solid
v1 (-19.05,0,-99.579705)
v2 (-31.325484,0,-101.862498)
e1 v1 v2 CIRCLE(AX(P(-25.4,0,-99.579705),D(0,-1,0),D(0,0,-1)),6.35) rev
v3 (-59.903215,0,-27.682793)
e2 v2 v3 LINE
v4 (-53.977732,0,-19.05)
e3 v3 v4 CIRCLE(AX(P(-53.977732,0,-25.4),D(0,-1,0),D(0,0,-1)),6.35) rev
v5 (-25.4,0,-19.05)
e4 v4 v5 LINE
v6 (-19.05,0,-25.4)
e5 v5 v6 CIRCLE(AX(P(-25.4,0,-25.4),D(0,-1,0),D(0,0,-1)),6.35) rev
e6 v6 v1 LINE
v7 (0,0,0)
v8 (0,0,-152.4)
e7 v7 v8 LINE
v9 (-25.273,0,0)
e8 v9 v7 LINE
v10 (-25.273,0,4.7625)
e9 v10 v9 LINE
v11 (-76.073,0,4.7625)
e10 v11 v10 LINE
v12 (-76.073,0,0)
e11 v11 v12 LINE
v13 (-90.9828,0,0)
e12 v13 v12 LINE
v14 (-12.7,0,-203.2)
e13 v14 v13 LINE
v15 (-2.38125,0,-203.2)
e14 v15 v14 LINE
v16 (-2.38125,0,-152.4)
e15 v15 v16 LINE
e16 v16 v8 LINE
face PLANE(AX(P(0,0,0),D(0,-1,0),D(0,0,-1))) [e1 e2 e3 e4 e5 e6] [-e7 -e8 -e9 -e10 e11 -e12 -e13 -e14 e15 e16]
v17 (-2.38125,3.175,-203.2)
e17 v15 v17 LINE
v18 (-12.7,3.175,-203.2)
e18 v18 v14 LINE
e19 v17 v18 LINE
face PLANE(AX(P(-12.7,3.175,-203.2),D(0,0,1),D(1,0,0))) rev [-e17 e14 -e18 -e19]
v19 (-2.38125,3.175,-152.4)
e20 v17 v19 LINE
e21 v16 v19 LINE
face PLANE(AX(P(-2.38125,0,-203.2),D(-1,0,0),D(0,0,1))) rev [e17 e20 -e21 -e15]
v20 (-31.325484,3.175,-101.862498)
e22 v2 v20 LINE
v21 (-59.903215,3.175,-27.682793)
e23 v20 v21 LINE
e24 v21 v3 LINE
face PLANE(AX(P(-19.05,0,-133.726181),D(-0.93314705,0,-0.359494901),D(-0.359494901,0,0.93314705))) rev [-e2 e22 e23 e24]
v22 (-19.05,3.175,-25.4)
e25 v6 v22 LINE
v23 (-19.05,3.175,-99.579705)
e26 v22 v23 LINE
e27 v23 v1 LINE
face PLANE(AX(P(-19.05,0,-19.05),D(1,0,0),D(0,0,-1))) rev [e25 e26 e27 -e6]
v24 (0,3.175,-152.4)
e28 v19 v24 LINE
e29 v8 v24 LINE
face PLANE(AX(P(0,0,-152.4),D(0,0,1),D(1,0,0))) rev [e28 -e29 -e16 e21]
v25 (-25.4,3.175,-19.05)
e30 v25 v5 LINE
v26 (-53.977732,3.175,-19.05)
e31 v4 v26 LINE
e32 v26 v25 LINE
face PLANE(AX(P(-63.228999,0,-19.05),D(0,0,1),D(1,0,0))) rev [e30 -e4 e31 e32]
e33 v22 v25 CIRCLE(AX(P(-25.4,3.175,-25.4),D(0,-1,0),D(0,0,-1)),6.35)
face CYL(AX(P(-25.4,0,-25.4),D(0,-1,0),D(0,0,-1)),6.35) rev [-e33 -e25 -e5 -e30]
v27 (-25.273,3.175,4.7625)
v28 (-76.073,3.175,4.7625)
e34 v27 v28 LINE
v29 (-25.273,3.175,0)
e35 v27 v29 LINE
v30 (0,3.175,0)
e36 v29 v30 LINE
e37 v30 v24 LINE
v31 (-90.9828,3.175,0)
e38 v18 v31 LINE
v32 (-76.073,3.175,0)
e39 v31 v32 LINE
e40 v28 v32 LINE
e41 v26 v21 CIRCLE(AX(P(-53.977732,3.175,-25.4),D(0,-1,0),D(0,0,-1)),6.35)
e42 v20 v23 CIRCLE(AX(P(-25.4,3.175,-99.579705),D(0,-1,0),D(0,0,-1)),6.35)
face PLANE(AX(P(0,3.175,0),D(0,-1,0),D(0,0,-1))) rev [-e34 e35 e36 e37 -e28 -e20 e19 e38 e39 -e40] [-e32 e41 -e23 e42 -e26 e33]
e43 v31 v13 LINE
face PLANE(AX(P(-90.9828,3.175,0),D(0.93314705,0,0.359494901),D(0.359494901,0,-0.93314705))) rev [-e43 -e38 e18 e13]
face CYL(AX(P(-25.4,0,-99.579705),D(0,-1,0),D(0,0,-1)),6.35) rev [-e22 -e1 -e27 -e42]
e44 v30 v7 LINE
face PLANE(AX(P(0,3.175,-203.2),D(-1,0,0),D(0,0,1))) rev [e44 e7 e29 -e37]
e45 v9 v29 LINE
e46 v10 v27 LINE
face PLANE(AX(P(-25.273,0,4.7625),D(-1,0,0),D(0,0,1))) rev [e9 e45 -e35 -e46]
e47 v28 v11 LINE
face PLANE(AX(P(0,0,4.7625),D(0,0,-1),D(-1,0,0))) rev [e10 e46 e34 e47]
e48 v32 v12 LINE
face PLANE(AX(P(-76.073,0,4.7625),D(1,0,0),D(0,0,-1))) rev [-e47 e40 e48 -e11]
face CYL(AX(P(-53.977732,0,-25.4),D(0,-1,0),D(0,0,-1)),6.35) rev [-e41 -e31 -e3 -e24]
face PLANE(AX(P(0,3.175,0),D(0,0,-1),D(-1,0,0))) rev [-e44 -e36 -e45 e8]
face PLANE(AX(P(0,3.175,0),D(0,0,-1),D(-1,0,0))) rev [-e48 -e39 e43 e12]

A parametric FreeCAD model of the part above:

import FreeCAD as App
import Part
import Sketcher
from FreeCAD import Vector
Q = App.Units.Quantity


def edges_at(feature, points):
    """Names of the edges that pass closest to the given points."""
    edges = feature.Shape.Edges
    near = lambda p: min(range(len(edges)), key=lambda i: edges[i].distToShape(Part.Vertex(*p))[0])
    return sorted({f"Edge{near(p) + 1}" for p in points})

doc = App.newDocument("Part")
params = doc.addObject("Spreadsheet::Sheet", "Params")
for row, (alias, value) in enumerate([
    ("sketch1_height", "8 in"),
    ("sketch1_width", "0.5 in"),
    ("sketch1_width2", "3.582 in"),
    ("pad1_length", "0.125 in"),
    ("pocket1_length", "0.125 in"),
    ("fillet_radius", "0.25 in"),
    ("sketch3_width", "2 in"),
    ("sketch3_height", "0.125 in"),
    ("pad2_length", "0.1875 in"),
    ("sketch4_height", "2 in"),
    ("sketch4_width", "0.09375 in"),
], start=1):
    params.set(f"A{row}", alias)
    params.set(f"B{row}", "=" + value)
    params.setAlias(f"B{row}", alias)

body = doc.addObject("PartDesign::Body", "Body")

# Sketch on XZ plane
sketch1 = doc.addObject("Sketcher::SketchObject", "Sketch")
body.addObject(sketch1)
sketch1.AttachmentSupport = (doc.XZ_Plane, [""])
sketch1.MapMode = "FlatFace"
sketch1.addGeometry(Part.LineSegment(Vector(-91, 0, 0), Vector(0, 0, 0)), False)
sketch1.addGeometry(Part.LineSegment(Vector(0, 0, 0), Vector(0, -203, 0)), False)
sketch1.addGeometry(Part.LineSegment(Vector(0, -203, 0), Vector(-13, -203, 0)), False)
sketch1.addGeometry(Part.LineSegment(Vector(-13, -203, 0), Vector(-91, 0, 0)), False)
sketch1.addConstraint(Sketcher.Constraint("Coincident", 0, 2, 1, 1))
sketch1.addConstraint(Sketcher.Constraint("Coincident", 1, 2, 2, 1))
sketch1.addConstraint(Sketcher.Constraint("Coincident", 2, 2, 3, 1))
sketch1.addConstraint(Sketcher.Constraint("Coincident", 3, 2, 0, 1))
sketch1.addConstraint(Sketcher.Constraint("Horizontal", 0))
sketch1.addConstraint(Sketcher.Constraint("Vertical", 1))
sketch1.addConstraint(Sketcher.Constraint("Horizontal", 2))
sketch1.addConstraint(Sketcher.Constraint("Coincident", 0, 2, -1, 1))
sketch1.addConstraint(Sketcher.Constraint("DistanceY", 1, 2, 1, 1, Q("8 in")))
sketch1.addConstraint(Sketcher.Constraint("DistanceX", 2, 2, 2, 1, Q("0.5 in")))
sketch1.addConstraint(Sketcher.Constraint("DistanceX", 0, 1, 0, 2, Q("3.582 in")))
sketch1.setExpression("Constraints[8]", "Params.sketch1_height")
sketch1.setExpression("Constraints[9]", "Params.sketch1_width")
sketch1.setExpression("Constraints[10]", "Params.sketch1_width2")
pad1 = doc.addObject("PartDesign::Pad", "Pad")
body.addObject(pad1)
pad1.Profile = sketch1
pad1.setExpression("Length", "Params.pad1_length")
pad1.Reversed = True

# Sketch on XZ plane
sketch2 = doc.addObject("Sketcher::SketchObject", "Sketch001")
body.addObject(sketch2)
sketch2.AttachmentSupport = (doc.XZ_Plane, [""])
sketch2.MapMode = "FlatFace"
sketch2.AttachmentOffset = App.Placement(Vector(0, 0, -0.125 * 25.4), App.Rotation())
sketch2.addGeometry(Part.LineSegment(Vector(-19, -19, 0), Vector(-19, -134, 0)), False)
sketch2.addGeometry(Part.LineSegment(Vector(-19, -134, 0), Vector(-63, -19, 0)), False)
sketch2.addGeometry(Part.LineSegment(Vector(-63, -19, 0), Vector(-19, -19, 0)), False)
sketch2.addConstraint(Sketcher.Constraint("Coincident", 0, 2, 1, 1))
sketch2.addConstraint(Sketcher.Constraint("Coincident", 1, 2, 2, 1))
sketch2.addConstraint(Sketcher.Constraint("Coincident", 2, 2, 0, 1))
sketch2.addConstraint(Sketcher.Constraint("Vertical", 0))
sketch2.addConstraint(Sketcher.Constraint("Horizontal", 2))
sketch2.addConstraint(Sketcher.Constraint("DistanceX", 0, 2, -1, 1, Q("0.75 in")))
sketch2.addConstraint(Sketcher.Constraint("DistanceY", 1, 2, -1, 1, Q("0.75 in")))
sketch2.addConstraint(Sketcher.Constraint("DistanceX", 2, 1, 2, 2, Q("44.178999 mm")))
sketch2.addConstraint(Sketcher.Constraint("DistanceY", 0, 2, 0, 1, Q("114.676181 mm")))
pocket1 = doc.addObject("PartDesign::Pocket", "Pocket")
body.addObject(pocket1)
pocket1.Profile = sketch2
pocket1.setExpression("Length", "Params.pocket1_length")
pocket1.Reversed = True
doc.recompute()

fillet = doc.addObject("PartDesign::Fillet", "Fillet")
body.addObject(fillet)
fillet.Base = (pocket1, edges_at(pocket1, [(-19.05, 1.587, -19.05), (-63.229, 1.587, -19.05), (-19.05, 1.587, -133.726)]))
fillet.setExpression("Radius", "Params.fillet_radius")

# Sketch on XY plane
sketch3 = doc.addObject("Sketcher::SketchObject", "Sketch002")
body.addObject(sketch3)
sketch3.AttachmentSupport = (doc.XY_Plane, [""])
sketch3.MapMode = "FlatFace"
sketch3.addGeometry(Part.LineSegment(Vector(-76.1, 3.2, 0), Vector(-76.1, 0, 0)), False)
sketch3.addGeometry(Part.LineSegment(Vector(-76.1, 0, 0), Vector(-25.3, 0, 0)), False)
sketch3.addGeometry(Part.LineSegment(Vector(-25.3, 0, 0), Vector(-25.3, 3.2, 0)), False)
sketch3.addGeometry(Part.LineSegment(Vector(-25.3, 3.2, 0), Vector(-76.1, 3.2, 0)), False)
sketch3.addConstraint(Sketcher.Constraint("Coincident", 0, 2, 1, 1))
sketch3.addConstraint(Sketcher.Constraint("Coincident", 1, 2, 2, 1))
sketch3.addConstraint(Sketcher.Constraint("Coincident", 2, 2, 3, 1))
sketch3.addConstraint(Sketcher.Constraint("Coincident", 3, 2, 0, 1))
sketch3.addConstraint(Sketcher.Constraint("Vertical", 0))
sketch3.addConstraint(Sketcher.Constraint("Horizontal", 1))
sketch3.addConstraint(Sketcher.Constraint("Vertical", 2))
sketch3.addConstraint(Sketcher.Constraint("Horizontal", 3))
sketch3.addConstraint(Sketcher.Constraint("PointOnObject", 0, 2, -1))
sketch3.addConstraint(Sketcher.Constraint("DistanceX", 1, 1, 1, 2, Q("2 in")))
sketch3.addConstraint(Sketcher.Constraint("DistanceY", 0, 2, 0, 1, Q("0.125 in")))
sketch3.addConstraint(Sketcher.Constraint("DistanceX", 0, 2, -1, 1, Q("2.995 in")))
sketch3.setExpression("Constraints[9]", "Params.sketch3_width")
sketch3.setExpression("Constraints[10]", "Params.sketch3_height")
pad2 = doc.addObject("PartDesign::Pad", "Pad001")
body.addObject(pad2)
pad2.Profile = sketch3
pad2.setExpression("Length", "Params.pad2_length")

# Sketch on XZ plane
sketch4 = doc.addObject("Sketcher::SketchObject", "Sketch003")
body.addObject(sketch4)
sketch4.AttachmentSupport = (doc.XZ_Plane, [""])
sketch4.MapMode = "FlatFace"
sketch4.AttachmentOffset = App.Placement(Vector(0, 0, -0.125 * 25.4), App.Rotation())
sketch4.addGeometry(Part.LineSegment(Vector(-2.4, -203.2, 0), Vector(-2.4, -152.4, 0)), False)
sketch4.addGeometry(Part.LineSegment(Vector(-2.4, -152.4, 0), Vector(0, -152.4, 0)), False)
sketch4.addGeometry(Part.LineSegment(Vector(0, -152.4, 0), Vector(0, -203.2, 0)), False)
sketch4.addGeometry(Part.LineSegment(Vector(0, -203.2, 0), Vector(-2.4, -203.2, 0)), False)
sketch4.addConstraint(Sketcher.Constraint("Coincident", 0, 2, 1, 1))
sketch4.addConstraint(Sketcher.Constraint("Coincident", 1, 2, 2, 1))
sketch4.addConstraint(Sketcher.Constraint("Coincident", 2, 2, 3, 1))
sketch4.addConstraint(Sketcher.Constraint("Coincident", 3, 2, 0, 1))
sketch4.addConstraint(Sketcher.Constraint("Vertical", 0))
sketch4.addConstraint(Sketcher.Constraint("Horizontal", 1))
sketch4.addConstraint(Sketcher.Constraint("Vertical", 2))
sketch4.addConstraint(Sketcher.Constraint("Horizontal", 3))
sketch4.addConstraint(Sketcher.Constraint("PointOnObject", 1, 2, -2))
sketch4.addConstraint(Sketcher.Constraint("DistanceY", 0, 1, 0, 2, Q("2 in")))
sketch4.addConstraint(Sketcher.Constraint("DistanceY", 0, 2, -1, 1, Q("6 in")))
sketch4.addConstraint(Sketcher.Constraint("DistanceX", 1, 1, 1, 2, Q("0.09375 in")))
sketch4.setExpression("Constraints[9]", "Params.sketch4_height")
sketch4.setExpression("Constraints[11]", "Params.sketch4_width")
pocket2 = doc.addObject("PartDesign::Pocket", "Pocket001")
body.addObject(pocket2)
pocket2.Profile = sketch4
pocket2.Type = "ThroughAll"
pocket2.Reversed = True

doc.recompute()
